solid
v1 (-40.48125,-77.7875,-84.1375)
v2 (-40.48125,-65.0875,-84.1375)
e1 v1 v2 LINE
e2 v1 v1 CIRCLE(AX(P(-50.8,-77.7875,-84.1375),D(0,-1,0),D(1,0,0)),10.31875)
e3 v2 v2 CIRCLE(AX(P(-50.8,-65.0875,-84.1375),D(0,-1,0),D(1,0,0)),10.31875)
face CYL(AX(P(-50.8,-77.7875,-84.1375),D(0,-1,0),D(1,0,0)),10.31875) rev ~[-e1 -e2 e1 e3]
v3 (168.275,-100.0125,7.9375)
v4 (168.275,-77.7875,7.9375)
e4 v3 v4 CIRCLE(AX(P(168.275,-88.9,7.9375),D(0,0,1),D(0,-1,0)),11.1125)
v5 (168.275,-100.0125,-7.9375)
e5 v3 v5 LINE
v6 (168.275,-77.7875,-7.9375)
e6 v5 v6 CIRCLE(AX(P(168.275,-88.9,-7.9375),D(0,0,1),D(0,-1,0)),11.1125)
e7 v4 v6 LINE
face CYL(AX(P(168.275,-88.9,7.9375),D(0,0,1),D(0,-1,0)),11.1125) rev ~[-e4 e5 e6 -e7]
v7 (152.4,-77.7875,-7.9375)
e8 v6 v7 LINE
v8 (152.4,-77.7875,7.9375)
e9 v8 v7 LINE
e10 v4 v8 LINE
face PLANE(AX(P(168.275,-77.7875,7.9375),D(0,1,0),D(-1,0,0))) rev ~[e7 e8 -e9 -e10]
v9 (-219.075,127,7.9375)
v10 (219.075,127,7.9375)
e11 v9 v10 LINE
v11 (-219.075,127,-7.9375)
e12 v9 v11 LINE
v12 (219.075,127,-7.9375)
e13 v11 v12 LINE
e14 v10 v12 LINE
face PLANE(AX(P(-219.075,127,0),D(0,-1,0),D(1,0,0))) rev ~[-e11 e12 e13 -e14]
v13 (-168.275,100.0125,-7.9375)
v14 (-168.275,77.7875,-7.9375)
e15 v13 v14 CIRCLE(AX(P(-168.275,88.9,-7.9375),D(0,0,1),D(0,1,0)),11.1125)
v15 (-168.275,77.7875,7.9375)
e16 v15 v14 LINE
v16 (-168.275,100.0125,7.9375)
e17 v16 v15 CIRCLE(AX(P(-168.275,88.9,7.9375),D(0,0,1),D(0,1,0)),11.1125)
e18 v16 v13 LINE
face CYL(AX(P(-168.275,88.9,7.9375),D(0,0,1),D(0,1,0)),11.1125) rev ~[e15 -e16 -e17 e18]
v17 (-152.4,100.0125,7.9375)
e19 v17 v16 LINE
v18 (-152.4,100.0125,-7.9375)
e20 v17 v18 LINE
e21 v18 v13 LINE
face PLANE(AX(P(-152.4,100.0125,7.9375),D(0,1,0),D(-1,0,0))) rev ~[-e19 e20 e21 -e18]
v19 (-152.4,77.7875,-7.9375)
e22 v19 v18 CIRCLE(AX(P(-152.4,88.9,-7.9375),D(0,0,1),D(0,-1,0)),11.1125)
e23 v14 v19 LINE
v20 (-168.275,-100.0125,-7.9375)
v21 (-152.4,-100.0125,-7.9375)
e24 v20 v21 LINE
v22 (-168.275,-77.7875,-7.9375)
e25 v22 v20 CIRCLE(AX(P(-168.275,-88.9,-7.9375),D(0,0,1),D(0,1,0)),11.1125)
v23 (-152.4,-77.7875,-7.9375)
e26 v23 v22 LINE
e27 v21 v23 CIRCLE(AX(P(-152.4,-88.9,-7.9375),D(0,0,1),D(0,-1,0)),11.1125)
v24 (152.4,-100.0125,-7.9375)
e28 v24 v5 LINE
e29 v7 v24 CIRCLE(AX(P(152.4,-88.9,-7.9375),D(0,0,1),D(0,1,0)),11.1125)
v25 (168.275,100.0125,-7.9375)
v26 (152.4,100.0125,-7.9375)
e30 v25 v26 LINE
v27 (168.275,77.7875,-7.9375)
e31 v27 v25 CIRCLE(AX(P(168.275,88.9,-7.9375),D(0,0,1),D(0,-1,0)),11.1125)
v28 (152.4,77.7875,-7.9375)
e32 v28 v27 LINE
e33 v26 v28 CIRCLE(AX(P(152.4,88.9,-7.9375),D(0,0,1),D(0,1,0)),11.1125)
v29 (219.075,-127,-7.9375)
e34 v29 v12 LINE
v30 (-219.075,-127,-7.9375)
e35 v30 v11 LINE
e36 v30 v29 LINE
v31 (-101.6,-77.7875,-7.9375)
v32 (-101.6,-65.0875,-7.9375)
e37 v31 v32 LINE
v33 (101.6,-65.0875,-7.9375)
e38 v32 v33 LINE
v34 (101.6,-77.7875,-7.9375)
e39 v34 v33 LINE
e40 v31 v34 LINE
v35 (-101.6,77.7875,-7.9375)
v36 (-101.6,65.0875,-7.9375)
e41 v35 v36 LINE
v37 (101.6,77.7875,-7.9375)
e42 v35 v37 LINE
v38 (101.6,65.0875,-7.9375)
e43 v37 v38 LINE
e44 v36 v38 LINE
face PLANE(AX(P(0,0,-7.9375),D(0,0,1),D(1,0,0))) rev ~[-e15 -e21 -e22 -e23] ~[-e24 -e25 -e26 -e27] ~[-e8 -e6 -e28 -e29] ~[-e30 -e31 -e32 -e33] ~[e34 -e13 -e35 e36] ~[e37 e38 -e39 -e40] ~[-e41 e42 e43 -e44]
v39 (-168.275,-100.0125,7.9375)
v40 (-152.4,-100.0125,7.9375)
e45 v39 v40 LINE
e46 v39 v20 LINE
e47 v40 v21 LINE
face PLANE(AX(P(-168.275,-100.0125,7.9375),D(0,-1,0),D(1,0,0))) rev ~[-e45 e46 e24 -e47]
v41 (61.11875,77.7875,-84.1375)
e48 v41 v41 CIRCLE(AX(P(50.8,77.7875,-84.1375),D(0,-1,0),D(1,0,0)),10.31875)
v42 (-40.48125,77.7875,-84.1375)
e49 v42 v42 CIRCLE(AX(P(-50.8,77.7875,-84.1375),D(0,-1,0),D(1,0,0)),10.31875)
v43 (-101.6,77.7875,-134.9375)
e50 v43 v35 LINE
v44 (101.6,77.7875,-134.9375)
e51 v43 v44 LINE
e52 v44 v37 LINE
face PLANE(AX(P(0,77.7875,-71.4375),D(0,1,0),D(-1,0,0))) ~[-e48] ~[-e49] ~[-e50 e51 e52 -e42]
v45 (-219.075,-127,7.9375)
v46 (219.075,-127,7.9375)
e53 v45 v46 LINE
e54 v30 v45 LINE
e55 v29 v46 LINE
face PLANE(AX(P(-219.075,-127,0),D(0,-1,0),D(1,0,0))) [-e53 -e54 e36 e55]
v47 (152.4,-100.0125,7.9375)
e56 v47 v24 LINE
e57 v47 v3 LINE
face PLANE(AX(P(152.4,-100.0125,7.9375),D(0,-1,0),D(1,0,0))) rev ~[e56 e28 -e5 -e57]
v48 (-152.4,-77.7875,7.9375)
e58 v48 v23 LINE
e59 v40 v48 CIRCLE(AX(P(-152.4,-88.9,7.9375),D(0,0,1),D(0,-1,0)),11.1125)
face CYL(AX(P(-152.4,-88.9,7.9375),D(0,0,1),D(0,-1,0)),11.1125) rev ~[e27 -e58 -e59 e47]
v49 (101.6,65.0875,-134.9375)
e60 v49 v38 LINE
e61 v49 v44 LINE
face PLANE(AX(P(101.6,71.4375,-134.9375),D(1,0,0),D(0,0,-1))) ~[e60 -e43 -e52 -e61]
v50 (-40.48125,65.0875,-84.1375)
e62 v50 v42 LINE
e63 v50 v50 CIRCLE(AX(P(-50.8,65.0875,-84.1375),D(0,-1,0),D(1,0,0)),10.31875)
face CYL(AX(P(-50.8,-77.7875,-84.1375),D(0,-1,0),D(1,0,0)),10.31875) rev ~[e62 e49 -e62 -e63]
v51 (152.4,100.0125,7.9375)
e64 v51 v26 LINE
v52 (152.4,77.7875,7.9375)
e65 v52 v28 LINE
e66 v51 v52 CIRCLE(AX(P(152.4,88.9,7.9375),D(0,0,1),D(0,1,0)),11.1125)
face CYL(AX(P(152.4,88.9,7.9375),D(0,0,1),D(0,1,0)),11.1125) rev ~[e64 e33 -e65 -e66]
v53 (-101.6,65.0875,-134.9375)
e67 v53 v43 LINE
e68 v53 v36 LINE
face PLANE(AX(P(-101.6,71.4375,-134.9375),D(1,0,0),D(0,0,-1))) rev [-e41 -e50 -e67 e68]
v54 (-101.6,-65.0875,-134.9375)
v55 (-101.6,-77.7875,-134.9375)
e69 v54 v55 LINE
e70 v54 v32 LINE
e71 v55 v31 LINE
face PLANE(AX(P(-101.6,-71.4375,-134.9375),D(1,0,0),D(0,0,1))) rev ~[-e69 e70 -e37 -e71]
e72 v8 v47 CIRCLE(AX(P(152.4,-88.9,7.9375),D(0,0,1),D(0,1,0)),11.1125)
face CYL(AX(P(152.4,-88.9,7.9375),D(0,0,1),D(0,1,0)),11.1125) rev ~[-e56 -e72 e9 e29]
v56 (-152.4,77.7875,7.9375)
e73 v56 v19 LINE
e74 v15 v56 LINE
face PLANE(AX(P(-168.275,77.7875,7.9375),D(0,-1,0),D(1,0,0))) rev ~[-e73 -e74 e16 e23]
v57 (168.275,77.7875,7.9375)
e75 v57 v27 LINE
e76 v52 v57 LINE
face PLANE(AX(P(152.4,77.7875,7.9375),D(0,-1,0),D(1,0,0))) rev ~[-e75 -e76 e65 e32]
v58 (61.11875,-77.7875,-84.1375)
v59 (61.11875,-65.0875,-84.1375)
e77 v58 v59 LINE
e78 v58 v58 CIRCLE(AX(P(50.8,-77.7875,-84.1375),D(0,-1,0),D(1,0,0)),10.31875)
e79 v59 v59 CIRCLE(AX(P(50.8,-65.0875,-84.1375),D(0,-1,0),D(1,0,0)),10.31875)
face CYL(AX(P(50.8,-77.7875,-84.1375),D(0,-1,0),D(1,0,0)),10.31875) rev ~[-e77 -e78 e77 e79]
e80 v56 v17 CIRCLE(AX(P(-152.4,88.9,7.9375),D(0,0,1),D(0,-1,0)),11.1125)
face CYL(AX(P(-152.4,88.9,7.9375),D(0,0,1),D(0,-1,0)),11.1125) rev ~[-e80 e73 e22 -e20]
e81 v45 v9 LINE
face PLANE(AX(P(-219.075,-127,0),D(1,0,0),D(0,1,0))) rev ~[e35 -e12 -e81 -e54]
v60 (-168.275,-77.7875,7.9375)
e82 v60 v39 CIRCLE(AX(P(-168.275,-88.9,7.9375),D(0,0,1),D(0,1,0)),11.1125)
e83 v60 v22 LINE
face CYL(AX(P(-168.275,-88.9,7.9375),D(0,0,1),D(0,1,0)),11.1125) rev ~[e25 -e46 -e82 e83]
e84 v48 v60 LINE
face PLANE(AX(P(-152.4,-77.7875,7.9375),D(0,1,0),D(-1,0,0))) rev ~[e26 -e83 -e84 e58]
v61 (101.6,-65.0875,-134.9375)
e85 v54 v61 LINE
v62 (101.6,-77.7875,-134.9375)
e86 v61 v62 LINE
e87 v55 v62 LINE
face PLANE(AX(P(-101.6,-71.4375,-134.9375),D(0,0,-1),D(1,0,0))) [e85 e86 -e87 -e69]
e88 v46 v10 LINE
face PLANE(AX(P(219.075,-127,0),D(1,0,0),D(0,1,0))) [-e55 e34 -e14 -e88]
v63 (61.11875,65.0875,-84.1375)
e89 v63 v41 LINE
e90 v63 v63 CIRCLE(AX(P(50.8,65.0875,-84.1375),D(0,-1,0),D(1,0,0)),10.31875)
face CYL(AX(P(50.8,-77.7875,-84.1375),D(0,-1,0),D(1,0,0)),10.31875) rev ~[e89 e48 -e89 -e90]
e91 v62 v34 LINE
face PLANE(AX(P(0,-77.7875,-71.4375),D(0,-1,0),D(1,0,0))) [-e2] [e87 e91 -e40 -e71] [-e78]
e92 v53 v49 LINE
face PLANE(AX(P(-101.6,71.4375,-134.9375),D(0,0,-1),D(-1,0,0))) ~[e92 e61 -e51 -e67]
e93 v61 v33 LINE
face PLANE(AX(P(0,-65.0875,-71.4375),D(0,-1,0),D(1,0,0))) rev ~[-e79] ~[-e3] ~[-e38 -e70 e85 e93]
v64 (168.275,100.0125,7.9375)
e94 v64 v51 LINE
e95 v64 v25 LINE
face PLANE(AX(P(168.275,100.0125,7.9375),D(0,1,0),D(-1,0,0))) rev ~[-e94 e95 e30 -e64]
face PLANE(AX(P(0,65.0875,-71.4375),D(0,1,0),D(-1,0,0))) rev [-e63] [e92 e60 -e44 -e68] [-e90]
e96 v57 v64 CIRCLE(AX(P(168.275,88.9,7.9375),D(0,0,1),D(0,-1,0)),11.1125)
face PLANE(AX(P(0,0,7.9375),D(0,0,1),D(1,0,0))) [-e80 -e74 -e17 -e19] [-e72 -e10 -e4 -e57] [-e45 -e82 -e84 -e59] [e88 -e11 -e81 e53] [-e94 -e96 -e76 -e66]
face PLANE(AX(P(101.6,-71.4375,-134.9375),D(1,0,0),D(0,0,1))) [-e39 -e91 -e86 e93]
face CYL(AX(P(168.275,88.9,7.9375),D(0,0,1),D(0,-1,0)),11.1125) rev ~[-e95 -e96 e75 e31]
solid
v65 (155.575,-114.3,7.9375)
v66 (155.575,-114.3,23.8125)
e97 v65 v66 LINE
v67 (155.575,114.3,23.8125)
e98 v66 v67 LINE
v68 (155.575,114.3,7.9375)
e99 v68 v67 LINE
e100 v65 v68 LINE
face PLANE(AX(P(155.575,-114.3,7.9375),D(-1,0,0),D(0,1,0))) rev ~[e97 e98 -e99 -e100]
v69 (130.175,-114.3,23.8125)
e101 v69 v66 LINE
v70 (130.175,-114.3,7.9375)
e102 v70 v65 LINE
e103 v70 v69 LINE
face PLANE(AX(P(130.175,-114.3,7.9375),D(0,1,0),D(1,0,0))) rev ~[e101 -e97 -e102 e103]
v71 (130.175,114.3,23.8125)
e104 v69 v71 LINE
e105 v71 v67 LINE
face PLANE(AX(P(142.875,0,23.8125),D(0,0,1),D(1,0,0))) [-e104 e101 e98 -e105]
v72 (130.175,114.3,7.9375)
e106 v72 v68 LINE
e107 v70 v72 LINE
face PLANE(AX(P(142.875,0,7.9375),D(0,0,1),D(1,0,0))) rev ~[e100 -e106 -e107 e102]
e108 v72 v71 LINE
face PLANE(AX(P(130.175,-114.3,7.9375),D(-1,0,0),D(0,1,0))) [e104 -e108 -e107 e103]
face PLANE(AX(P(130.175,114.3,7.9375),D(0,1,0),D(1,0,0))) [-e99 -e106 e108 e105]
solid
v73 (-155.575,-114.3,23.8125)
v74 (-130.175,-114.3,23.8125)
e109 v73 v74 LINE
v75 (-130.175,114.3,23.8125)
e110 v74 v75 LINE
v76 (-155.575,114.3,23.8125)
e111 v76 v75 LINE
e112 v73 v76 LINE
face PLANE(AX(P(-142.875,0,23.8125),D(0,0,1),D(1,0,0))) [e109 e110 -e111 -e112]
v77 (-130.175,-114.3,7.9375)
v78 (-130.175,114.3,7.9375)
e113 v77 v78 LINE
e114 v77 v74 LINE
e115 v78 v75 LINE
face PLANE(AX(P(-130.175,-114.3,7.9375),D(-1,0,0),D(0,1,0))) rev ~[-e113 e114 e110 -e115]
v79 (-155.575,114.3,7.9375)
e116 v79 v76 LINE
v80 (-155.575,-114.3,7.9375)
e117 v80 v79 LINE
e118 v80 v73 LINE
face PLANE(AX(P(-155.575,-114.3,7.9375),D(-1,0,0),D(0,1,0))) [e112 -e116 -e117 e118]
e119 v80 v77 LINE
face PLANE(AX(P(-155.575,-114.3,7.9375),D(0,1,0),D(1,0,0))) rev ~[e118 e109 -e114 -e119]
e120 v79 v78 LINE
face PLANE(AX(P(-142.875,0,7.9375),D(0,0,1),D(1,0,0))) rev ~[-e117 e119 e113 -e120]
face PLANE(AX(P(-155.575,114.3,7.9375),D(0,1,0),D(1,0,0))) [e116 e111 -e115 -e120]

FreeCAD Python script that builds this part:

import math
import FreeCAD as App
import Part
import Sketcher

V = App.Vector
Q = App.Units.Quantity

doc = App.newDocument("Part")
body = doc.addObject("PartDesign::Body", "Body")

# Sketch on XY plane
sketch1 = body.newObject("Sketcher::SketchObject", "Sketch")
sketch1.AttachmentSupport = (doc.getObject("XY_Plane"), [""])
sketch1.MapMode = "FlatFace"
sketch1.addGeometry([
    Part.LineSegment(V(-219, 127, 0), V(-219, -127, 0)),
    Part.LineSegment(V(-219, -127, 0), V(219, -127, 0)),
    Part.LineSegment(V(219, -127, 0), V(219, 127, 0)),
    Part.LineSegment(V(219, 127, 0), V(-219, 127, 0)),
], False)
sketch1.addConstraint([
    Sketcher.Constraint("Coincident", 0, 2, 1, 1),
    Sketcher.Constraint("Coincident", 1, 2, 2, 1),
    Sketcher.Constraint("Coincident", 2, 2, 3, 1),
    Sketcher.Constraint("Coincident", 3, 2, 0, 1),
    Sketcher.Constraint("Vertical", 0),
    Sketcher.Constraint("Horizontal", 1),
    Sketcher.Constraint("Vertical", 2),
    Sketcher.Constraint("Horizontal", 3),
    Sketcher.Constraint("Symmetric", 0, 2, 2, 2, -1, 1),
    Sketcher.Constraint("DistanceY", 0, 2, 0, 1, Q("10 in")),
    Sketcher.Constraint("DistanceX", 1, 1, 1, 2, Q("17.25 in")),
])
pad1 = body.newObject("PartDesign::Pad", "Pad")
pad1.Profile = sketch1
pad1.Length = Q("0.625 in")
pad1.Midplane = True
body2 = doc.addObject("PartDesign::Body", "Body001")

# Sketch on XZ plane
sketch2 = body2.newObject("Sketcher::SketchObject", "Sketch001")
sketch2.AttachmentSupport = (doc.getObject("XZ_Plane001"), [""])
sketch2.MapMode = "FlatFace"
sketch2.addGeometry([
    Part.LineSegment(V(-102, -8, 0), V(-102, -135, 0)),
    Part.LineSegment(V(-102, -135, 0), V(102, -135, 0)),
    Part.LineSegment(V(102, -135, 0), V(102, -8, 0)),
    Part.LineSegment(V(102, -8, 0), V(-102, -8, 0)),
], False)
sketch2.addConstraint([
    Sketcher.Constraint("Coincident", 0, 2, 1, 1),
    Sketcher.Constraint("Coincident", 1, 2, 2, 1),
    Sketcher.Constraint("Coincident", 2, 2, 3, 1),
    Sketcher.Constraint("Coincident", 3, 2, 0, 1),
    Sketcher.Constraint("Vertical", 0),
    Sketcher.Constraint("Horizontal", 1),
    Sketcher.Constraint("Vertical", 2),
    Sketcher.Constraint("Horizontal", 3),
    Sketcher.Constraint("DistanceX", 1, 1, 1, 2, Q("8 in")),
    Sketcher.Constraint("DistanceY", 0, 2, 0, 1, Q("5 in")),
    Sketcher.Constraint("DistanceX", 0, 2, -1, 1, Q("4 in")),
    Sketcher.Constraint("DistanceY", 0, 2, -1, 1, Q("5.3125 in")),
])
pad2 = body2.newObject("PartDesign::Pad", "Pad001")
pad2.Profile = sketch2
pad2.Length = Q("0.5 in")
pad2.Midplane = True
body3 = doc.addObject("PartDesign::Body", "Body002")
doc.recompute()

body2.Placement = App.Placement(V(0, -71.4375, 0), App.Rotation(V(0, 0, 1), 0))
boolean = body3.newObject("PartDesign::Boolean", "Boolean")
boolean.Type = "Fuse"
boolean.addObjects([body2])
doc.recompute()

body4 = doc.addObject("PartDesign::Body", "Body003")
body4.BaseFeature = body3
boolean2 = body.newObject("PartDesign::Boolean", "Boolean001")
boolean2.Type = "Fuse"
boolean2.addObjects([body4])
doc.recompute()

mirroring = doc.addObject("Part::Mirroring", "Mirroring")
mirroring.Source = body3
mirroring.Base = V(0, 0, 0)
mirroring.Normal = V(0, -1, 0)
body5 = doc.addObject("PartDesign::Body", "Body004")
body5.BaseFeature = mirroring
boolean3 = body.newObject("PartDesign::Boolean", "Boolean002")
boolean3.Type = "Fuse"
boolean3.addObjects([body5])
doc.recompute()

# Sketch on XY plane
sketch3 = body.newObject("Sketcher::SketchObject", "Sketch002")
sketch3.AttachmentSupport = (doc.getObject("XY_Plane"), [""])
sketch3.MapMode = "FlatFace"
sketch3.AttachmentOffset = App.Placement(V(0, 0, 0.3125 * 25.4), App.Rotation())
sketch3.addGeometry([
    Part.LineSegment(V(-152, -78, 0), V(-168, -78, 0)),  # 0
    Part.ArcOfCircle(Part.Circle(V(-168, -89, 0), V(0, 0, 1), 11), math.radians(90), math.radians(270)),  # 1
    Part.LineSegment(V(-168, -100, 0), V(-152, -100, 0)),  # 2
    Part.ArcOfCircle(Part.Circle(V(-152, -89, 0), V(0, 0, 1), 11), math.radians(-90), math.radians(90)),  # 3
    Part.ArcOfCircle(Part.Circle(V(-168, 89, 0), V(0, 0, 1), 11), math.radians(90), math.radians(270)),  # 4
    Part.LineSegment(V(-168, 78, 0), V(-152, 78, 0)),  # 5
    Part.ArcOfCircle(Part.Circle(V(-152, 89, 0), V(0, 0, 1), 11), math.radians(-90), math.radians(90)),  # 6
    Part.LineSegment(V(-152, 100, 0), V(-168, 100, 0)),  # 7
    Part.LineSegment(V(152, 78, 0), V(168, 78, 0)),  # 8
    Part.ArcOfCircle(Part.Circle(V(168, 89, 0), V(0, 0, 1), 11), math.radians(-90), math.radians(90)),  # 9
    Part.LineSegment(V(168, 100, 0), V(152, 100, 0)),  # 10
    Part.ArcOfCircle(Part.Circle(V(152, 89, 0), V(0, 0, 1), 11), math.radians(90), math.radians(270)),  # 11
    Part.ArcOfCircle(Part.Circle(V(168, -89, 0), V(0, 0, 1), 11), math.radians(-90), math.radians(90)),  # 12
    Part.LineSegment(V(168, -78, 0), V(152, -78, 0)),  # 13
    Part.ArcOfCircle(Part.Circle(V(152, -89, 0), V(0, 0, 1), 11), math.radians(90), math.radians(270)),  # 14
    Part.LineSegment(V(152, -100, 0), V(168, -100, 0)),  # 15
], False)
sketch3.addConstraint([
    Sketcher.Constraint("Tangent", 0, 2, 1, 1),
    Sketcher.Constraint("Tangent", 1, 2, 2, 1),
    Sketcher.Constraint("Tangent", 2, 2, 3, 1),
    Sketcher.Constraint("Tangent", 3, 2, 0, 1),
    Sketcher.Constraint("Tangent", 4, 2, 5, 1),
    Sketcher.Constraint("Tangent", 5, 2, 6, 1),
    Sketcher.Constraint("Tangent", 6, 2, 7, 1),
    Sketcher.Constraint("Tangent", 7, 2, 4, 1),
    Sketcher.Constraint("Tangent", 8, 2, 9, 1),
    Sketcher.Constraint("Tangent", 9, 2, 10, 1),
    Sketcher.Constraint("Tangent", 10, 2, 11, 1),
    Sketcher.Constraint("Tangent", 11, 2, 8, 1),
    Sketcher.Constraint("Tangent", 12, 2, 13, 1),
    Sketcher.Constraint("Tangent", 13, 2, 14, 1),
    Sketcher.Constraint("Tangent", 14, 2, 15, 1),
    Sketcher.Constraint("Tangent", 15, 2, 12, 1),
    Sketcher.Constraint("Horizontal", 0),
    Sketcher.Constraint("Horizontal", 2),
    Sketcher.Constraint("Horizontal", 5),
    Sketcher.Constraint("Horizontal", 7),
    Sketcher.Constraint("Horizontal", 8),
    Sketcher.Constraint("Horizontal", 10),
    Sketcher.Constraint("Horizontal", 13),
    Sketcher.Constraint("Horizontal", 15),
    Sketcher.Constraint("Equal", 3, 4),
    Sketcher.Constraint("Equal", 6, 9),
    Sketcher.Constraint("Equal", 11, 12),
    Sketcher.Constraint("Symmetric", 1, 3, 9, 3, -1, 1),
    Sketcher.Constraint("Symmetric", 4, 3, 12, 3, -1, 1),
    Sketcher.Constraint("Symmetric", 4, 3, 9, 3, -2),
    Sketcher.Constraint("Vertical", 3, 3, 6, 3),
    Sketcher.Constraint("Vertical", 11, 3, 14, 3),
    Sketcher.Constraint("Equal", 7, 8),
    Sketcher.Constraint("DistanceX", 3, 3, -1, 1, Q("6 in")),
    Sketcher.Constraint("Radius", 1, Q("0.4375 in")),
    Sketcher.Constraint("DistanceY", 1, 3, 4, 3, Q("7 in")),
    Sketcher.Constraint("DistanceX", 0, 2, 0, 1, Q("0.625 in")),
])
pocket1 = body.newObject("PartDesign::Pocket", "Pocket")
pocket1.Profile = sketch3
pocket1.Type = "ThroughAll"

# Sketch on XZ plane
sketch4 = body.newObject("Sketcher::SketchObject", "Sketch003")
sketch4.AttachmentSupport = (doc.getObject("XZ_Plane"), [""])
sketch4.MapMode = "FlatFace"
sketch4.AttachmentOffset = App.Placement(V(0, 0, 3.0625 * 25.4), App.Rotation())
sketch4.addGeometry([
    Part.Circle(V(-51, -84, 0), V(0, 0, 1), 10),
    Part.Circle(V(51, -84, 0), V(0, 0, 1), 10),
], False)
sketch4.addConstraint([
    Sketcher.Constraint("Equal", 0, 1),
    Sketcher.Constraint("Symmetric", 0, 3, 1, 3, -2),
    Sketcher.Constraint("Diameter", 0, Q("0.8125 in")),
    Sketcher.Constraint("DistanceX", 0, 3, -1, 1, Q("2 in")),
    Sketcher.Constraint("DistanceY", 0, 3, -1, 1, Q("3.3125 in")),
])
pocket2 = body.newObject("PartDesign::Pocket", "Pocket001")
pocket2.Profile = sketch4
pocket2.Type = "ThroughAll"
body6 = doc.addObject("PartDesign::Body", "Body005")

# Sketch on XY plane
sketch5 = body6.newObject("Sketcher::SketchObject", "Sketch004")
sketch5.AttachmentSupport = (doc.getObject("XY_Plane005"), [""])
sketch5.MapMode = "FlatFace"
sketch5.AttachmentOffset = App.Placement(V(0, 0, 0.3125 * 25.4), App.Rotation())
sketch5.addGeometry([
    Part.LineSegment(V(-156, 114, 0), V(-156, -114, 0)),
    Part.LineSegment(V(-156, -114, 0), V(-130, -114, 0)),
    Part.LineSegment(V(-130, -114, 0), V(-130, 114, 0)),
    Part.LineSegment(V(-130, 114, 0), V(-156, 114, 0)),
], False)
sketch5.addConstraint([
    Sketcher.Constraint("Coincident", 0, 2, 1, 1),
    Sketcher.Constraint("Coincident", 1, 2, 2, 1),
    Sketcher.Constraint("Coincident", 2, 2, 3, 1),
    Sketcher.Constraint("Coincident", 3, 2, 0, 1),
    Sketcher.Constraint("Vertical", 0),
    Sketcher.Constraint("Horizontal", 1),
    Sketcher.Constraint("Vertical", 2),
    Sketcher.Constraint("Horizontal", 3),
    Sketcher.Constraint("DistanceX", 1, 1, 1, 2, Q("1 in")),
    Sketcher.Constraint("DistanceY", 0, 2, 0, 1, Q("9 in")),
    Sketcher.Constraint("DistanceY", 0, 2, -1, 1, Q("4.5 in")),
    Sketcher.Constraint("DistanceX", 0, 2, -1, 1, Q("6.125 in")),
])
pad3 = body6.newObject("PartDesign::Pad", "Pad002")
pad3.Profile = sketch5
pad3.Length = Q("0.625 in")
body7 = doc.addObject("PartDesign::Body", "Body006")

# Sketch on XY plane
sketch6 = body7.newObject("Sketcher::SketchObject", "Sketch005")
sketch6.AttachmentSupport = (doc.getObject("XY_Plane006"), [""])
sketch6.MapMode = "FlatFace"
sketch6.AttachmentOffset = App.Placement(V(0, 0, 0.3125 * 25.4), App.Rotation())
sketch6.addGeometry([
    Part.LineSegment(V(130, 114, 0), V(130, -114, 0)),
    Part.LineSegment(V(130, -114, 0), V(156, -114, 0)),
    Part.LineSegment(V(156, -114, 0), V(156, 114, 0)),
    Part.LineSegment(V(156, 114, 0), V(130, 114, 0)),
], False)
sketch6.addConstraint([
    Sketcher.Constraint("Coincident", 0, 2, 1, 1),
    Sketcher.Constraint("Coincident", 1, 2, 2, 1),
    Sketcher.Constraint("Coincident", 2, 2, 3, 1),
    Sketcher.Constraint("Coincident", 3, 2, 0, 1),
    Sketcher.Constraint("Vertical", 0),
    Sketcher.Constraint("Horizontal", 1),
    Sketcher.Constraint("Vertical", 2),
    Sketcher.Constraint("Horizontal", 3),
    Sketcher.Constraint("DistanceX", 1, 1, 1, 2, Q("1 in")),
    Sketcher.Constraint("DistanceY", 0, 2, 0, 1, Q("9 in")),
    Sketcher.Constraint("DistanceY", 0, 2, -1, 1, Q("4.5 in")),
    Sketcher.Constraint("DistanceX", -1, 1, 0, 2, Q("5.125 in")),
])
pad4 = body7.newObject("PartDesign::Pad", "Pad003")
pad4.Profile = sketch6
pad4.Length = Q("0.625 in")
mirroring.Visibility = False

doc.recompute()
